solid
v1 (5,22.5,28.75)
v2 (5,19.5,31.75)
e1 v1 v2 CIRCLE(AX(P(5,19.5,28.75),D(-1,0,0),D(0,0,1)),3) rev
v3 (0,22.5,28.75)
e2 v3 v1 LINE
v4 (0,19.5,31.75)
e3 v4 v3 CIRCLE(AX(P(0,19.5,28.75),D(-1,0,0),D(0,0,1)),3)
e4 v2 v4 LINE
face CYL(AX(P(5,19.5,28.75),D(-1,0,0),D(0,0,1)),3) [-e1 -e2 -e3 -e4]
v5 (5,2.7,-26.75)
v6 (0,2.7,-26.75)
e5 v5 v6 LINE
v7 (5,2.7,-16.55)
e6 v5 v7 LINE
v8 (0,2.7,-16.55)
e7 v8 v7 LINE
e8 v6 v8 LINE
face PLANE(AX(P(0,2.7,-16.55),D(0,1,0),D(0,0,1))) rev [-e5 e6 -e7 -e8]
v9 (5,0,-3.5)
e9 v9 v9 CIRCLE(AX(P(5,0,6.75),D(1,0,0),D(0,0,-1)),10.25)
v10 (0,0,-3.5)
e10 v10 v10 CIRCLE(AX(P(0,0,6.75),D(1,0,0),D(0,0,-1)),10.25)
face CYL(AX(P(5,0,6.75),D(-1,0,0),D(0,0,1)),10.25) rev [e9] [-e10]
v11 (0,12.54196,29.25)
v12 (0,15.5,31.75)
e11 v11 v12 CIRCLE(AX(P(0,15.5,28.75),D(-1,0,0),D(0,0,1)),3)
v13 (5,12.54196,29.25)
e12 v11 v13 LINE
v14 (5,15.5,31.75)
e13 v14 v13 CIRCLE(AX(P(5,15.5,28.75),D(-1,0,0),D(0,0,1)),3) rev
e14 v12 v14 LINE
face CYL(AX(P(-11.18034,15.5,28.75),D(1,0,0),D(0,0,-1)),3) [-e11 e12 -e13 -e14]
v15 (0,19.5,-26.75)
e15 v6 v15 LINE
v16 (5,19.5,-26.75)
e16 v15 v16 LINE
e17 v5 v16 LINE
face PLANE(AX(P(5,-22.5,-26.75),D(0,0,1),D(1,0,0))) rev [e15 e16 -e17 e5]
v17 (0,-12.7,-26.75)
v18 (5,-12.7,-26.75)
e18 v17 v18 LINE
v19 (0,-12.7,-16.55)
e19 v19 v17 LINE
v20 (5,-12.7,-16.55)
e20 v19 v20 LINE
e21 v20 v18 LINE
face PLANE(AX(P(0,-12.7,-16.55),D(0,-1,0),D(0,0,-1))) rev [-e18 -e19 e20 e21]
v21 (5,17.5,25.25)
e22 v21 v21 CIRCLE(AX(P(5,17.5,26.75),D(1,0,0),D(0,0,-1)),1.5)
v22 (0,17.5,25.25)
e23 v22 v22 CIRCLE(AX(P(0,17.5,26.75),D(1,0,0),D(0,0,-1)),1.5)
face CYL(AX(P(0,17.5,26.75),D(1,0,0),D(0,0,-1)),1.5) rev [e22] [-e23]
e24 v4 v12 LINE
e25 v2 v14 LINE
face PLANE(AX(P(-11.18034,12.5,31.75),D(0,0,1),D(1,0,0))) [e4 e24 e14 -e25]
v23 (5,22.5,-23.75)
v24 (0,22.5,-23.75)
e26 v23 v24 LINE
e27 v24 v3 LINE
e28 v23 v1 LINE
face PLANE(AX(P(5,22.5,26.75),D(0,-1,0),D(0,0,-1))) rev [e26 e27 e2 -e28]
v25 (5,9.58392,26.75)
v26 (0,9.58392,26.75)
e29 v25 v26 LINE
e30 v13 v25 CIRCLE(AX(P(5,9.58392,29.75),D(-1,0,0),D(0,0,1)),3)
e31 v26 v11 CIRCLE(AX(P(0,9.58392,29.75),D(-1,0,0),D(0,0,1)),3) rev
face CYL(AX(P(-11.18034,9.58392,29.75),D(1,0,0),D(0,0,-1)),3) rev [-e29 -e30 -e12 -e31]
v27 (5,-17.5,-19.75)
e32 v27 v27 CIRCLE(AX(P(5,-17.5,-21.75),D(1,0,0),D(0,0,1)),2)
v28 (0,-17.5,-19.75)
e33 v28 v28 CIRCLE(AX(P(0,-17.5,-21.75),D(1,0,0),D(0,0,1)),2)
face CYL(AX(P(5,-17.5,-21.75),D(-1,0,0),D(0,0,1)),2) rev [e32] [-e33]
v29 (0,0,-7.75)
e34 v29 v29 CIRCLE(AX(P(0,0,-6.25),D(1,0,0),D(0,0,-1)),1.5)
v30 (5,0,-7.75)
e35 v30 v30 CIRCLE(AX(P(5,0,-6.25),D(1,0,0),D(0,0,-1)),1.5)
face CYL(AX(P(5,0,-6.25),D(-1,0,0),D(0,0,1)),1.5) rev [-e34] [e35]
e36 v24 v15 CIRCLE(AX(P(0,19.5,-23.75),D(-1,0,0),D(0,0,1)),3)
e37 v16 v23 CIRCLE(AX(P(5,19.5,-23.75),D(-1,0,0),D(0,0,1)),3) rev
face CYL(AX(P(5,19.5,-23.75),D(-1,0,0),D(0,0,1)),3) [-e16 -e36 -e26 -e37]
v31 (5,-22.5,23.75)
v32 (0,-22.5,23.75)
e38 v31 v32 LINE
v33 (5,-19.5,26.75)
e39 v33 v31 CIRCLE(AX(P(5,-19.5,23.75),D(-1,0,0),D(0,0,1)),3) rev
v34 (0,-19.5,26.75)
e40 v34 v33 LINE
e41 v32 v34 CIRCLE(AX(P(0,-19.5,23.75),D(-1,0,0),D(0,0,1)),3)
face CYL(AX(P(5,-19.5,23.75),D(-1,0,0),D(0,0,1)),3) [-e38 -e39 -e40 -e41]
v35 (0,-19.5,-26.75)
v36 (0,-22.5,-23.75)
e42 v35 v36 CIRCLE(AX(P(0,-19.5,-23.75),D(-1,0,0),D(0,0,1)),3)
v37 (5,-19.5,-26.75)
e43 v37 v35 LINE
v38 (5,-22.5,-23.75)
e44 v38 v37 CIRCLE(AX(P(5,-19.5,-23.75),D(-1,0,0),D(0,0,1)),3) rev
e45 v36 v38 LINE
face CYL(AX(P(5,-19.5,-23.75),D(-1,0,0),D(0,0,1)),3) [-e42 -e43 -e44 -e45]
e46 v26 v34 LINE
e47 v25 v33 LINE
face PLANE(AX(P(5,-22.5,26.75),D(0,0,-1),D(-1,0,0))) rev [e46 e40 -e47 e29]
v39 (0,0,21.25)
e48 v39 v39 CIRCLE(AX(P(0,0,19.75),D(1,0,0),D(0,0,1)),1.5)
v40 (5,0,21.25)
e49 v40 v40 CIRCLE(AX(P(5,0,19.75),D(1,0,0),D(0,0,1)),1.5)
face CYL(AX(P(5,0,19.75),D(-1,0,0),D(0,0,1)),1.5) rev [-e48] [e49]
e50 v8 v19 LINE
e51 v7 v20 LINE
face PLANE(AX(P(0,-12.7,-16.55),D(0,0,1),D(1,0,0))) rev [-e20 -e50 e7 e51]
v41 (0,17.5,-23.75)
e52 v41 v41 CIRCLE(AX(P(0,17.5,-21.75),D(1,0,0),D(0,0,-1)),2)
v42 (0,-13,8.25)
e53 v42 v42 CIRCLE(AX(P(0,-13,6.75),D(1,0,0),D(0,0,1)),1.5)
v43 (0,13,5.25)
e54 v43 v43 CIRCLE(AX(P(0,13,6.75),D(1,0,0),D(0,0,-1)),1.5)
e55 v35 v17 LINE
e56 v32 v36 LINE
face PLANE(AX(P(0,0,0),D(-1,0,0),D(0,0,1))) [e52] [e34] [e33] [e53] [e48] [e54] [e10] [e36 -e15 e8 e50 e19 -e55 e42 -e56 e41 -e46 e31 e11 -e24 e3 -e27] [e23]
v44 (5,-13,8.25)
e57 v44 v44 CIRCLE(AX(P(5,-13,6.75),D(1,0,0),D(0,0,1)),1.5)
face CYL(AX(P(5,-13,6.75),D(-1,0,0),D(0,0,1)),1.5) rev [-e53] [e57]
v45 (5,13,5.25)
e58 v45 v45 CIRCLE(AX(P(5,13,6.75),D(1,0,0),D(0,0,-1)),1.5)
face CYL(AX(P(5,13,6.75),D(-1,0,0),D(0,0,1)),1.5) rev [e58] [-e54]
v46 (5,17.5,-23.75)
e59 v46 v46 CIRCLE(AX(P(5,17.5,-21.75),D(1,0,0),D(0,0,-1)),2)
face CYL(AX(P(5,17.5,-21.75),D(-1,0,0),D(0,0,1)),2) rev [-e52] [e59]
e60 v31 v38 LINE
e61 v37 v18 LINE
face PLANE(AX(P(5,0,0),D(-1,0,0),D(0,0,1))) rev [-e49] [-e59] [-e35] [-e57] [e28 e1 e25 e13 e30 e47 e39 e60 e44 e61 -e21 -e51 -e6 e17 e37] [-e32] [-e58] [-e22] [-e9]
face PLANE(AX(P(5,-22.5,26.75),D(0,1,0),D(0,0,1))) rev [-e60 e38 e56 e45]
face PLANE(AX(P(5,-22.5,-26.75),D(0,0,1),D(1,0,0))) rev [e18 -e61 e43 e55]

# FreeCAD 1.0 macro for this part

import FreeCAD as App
import Part
import Sketcher

V = App.Vector


def edges_at(feature, points):
    """Names of the edges that pass closest to the given points."""
    edges = feature.Shape.Edges
    near = lambda p: min(range(len(edges)), key=lambda i: edges[i].distToShape(Part.Vertex(*p))[0])
    return sorted({f"Edge{near(p) + 1}" for p in points})

doc = App.newDocument("Part")
body = doc.addObject("PartDesign::Body", "Body")

# Sketch on YZ plane
sketch1 = body.newObject("Sketcher::SketchObject", "Sketch")
sketch1.AttachmentSupport = (doc.getObject("YZ_Plane"), [""])
sketch1.MapMode = "FlatFace"
sketch1.addGeometry(Part.LineSegment(V(22.5, 26.8, 0), V(-22.5, 26.8, 0)), False)
sketch1.addGeometry(Part.LineSegment(V(-22.5, 26.8, 0), V(-22.5, -26.8, 0)), False)
sketch1.addGeometry(Part.LineSegment(V(-22.5, -26.8, 0), V(22.5, -26.8, 0)), False)
sketch1.addGeometry(Part.LineSegment(V(22.5, -26.8, 0), V(22.5, 26.8, 0)), False)
sketch1.addGeometry(Part.Circle(V(-13, 6.8, 0), V(0, 0, 1), 1.5), False)
sketch1.addGeometry(Part.Circle(V(-17.5, -21.8, 0), V(0, 0, 1), 2), False)
sketch1.addGeometry(Part.Circle(V(0, 19.8, 0), V(0, 0, 1), 1.5), False)
sketch1.addGeometry(Part.Circle(V(0, 6.8, 0), V(0, 0, 1), 10.2), False)
sketch1.addGeometry(Part.Circle(V(13, 6.8, 0), V(0, 0, 1), 1.5), False)
sketch1.addGeometry(Part.Circle(V(0, -6.2, 0), V(0, 0, 1), 1.5), False)
sketch1.addGeometry(Part.Circle(V(17.5, -21.8, 0), V(0, 0, 1), 2), False)
sketch1.addConstraint(Sketcher.Constraint("Coincident", 0, 2, 1, 1))
sketch1.addConstraint(Sketcher.Constraint("Coincident", 1, 2, 2, 1))
sketch1.addConstraint(Sketcher.Constraint("Coincident", 2, 2, 3, 1))
sketch1.addConstraint(Sketcher.Constraint("Coincident", 3, 2, 0, 1))
sketch1.addConstraint(Sketcher.Constraint("Horizontal", 0))
sketch1.addConstraint(Sketcher.Constraint("Vertical", 1))
sketch1.addConstraint(Sketcher.Constraint("Horizontal", 2))
sketch1.addConstraint(Sketcher.Constraint("Vertical", 3))
sketch1.addConstraint(Sketcher.Constraint("Equal", 4, 6))
sketch1.addConstraint(Sketcher.Constraint("Equal", 6, 8))
sketch1.addConstraint(Sketcher.Constraint("Equal", 8, 9))
sketch1.addConstraint(Sketcher.Constraint("Equal", 5, 10))
sketch1.addConstraint(Sketcher.Constraint("Symmetric", 0, 2, 2, 2, -1, 1))
sketch1.addConstraint(Sketcher.Constraint("Symmetric", 4, 3, 8, 3, -2))
sketch1.addConstraint(Sketcher.Constraint("Symmetric", 5, 3, 10, 3, -2))
sketch1.addConstraint(Sketcher.Constraint("PointOnObject", 6, 3, -2))
sketch1.addConstraint(Sketcher.Constraint("PointOnObject", 7, 3, -2))
sketch1.addConstraint(Sketcher.Constraint("PointOnObject", 9, 3, -2))
sketch1.addConstraint(Sketcher.Constraint("Horizontal", 4, 3, 7, 3))
sketch1.addConstraint(Sketcher.Constraint("Diameter", 4, 3.0))
sketch1.addConstraint(Sketcher.Constraint("Diameter", 5, 4.0))
sketch1.addConstraint(Sketcher.Constraint("Diameter", 7, 20.5))
sketch1.addConstraint(Sketcher.Constraint("DistanceX", 0, 2, 0, 1, 45.0))
sketch1.addConstraint(Sketcher.Constraint("DistanceY", 1, 2, 1, 1, 53.5))
sketch1.addConstraint(Sketcher.Constraint("DistanceX", 4, 3, -1, 1, 13.0))
sketch1.addConstraint(Sketcher.Constraint("DistanceY", 4, 3, 6, 3, 13.0))
sketch1.addConstraint(Sketcher.Constraint("DistanceY", 9, 3, 7, 3, 13.0))
sketch1.addConstraint(Sketcher.Constraint("DistanceX", 5, 3, 10, 3, 35.0))
sketch1.addConstraint(Sketcher.Constraint("DistanceY", 4, 3, 0, 2, 20.0))
sketch1.addConstraint(Sketcher.Constraint("DistanceY", 1, 2, 5, 3, 5.0))
pad1 = body.newObject("PartDesign::Pad", "Pad")
pad1.Profile = sketch1
pad1.Length = 5

# Sketch on YZ plane
sketch2 = body.newObject("Sketcher::SketchObject", "Sketch001")
sketch2.AttachmentSupport = (doc.getObject("YZ_Plane"), [""])
sketch2.MapMode = "FlatFace"
sketch2.AttachmentOffset = App.Placement(V(0, 0, 5), App.Rotation())
sketch2.addGeometry(Part.LineSegment(V(22, 32, 0), V(12, 32, 0)), False)
sketch2.addGeometry(Part.LineSegment(V(12, 32, 0), V(12, 27, 0)), False)
sketch2.addGeometry(Part.LineSegment(V(12, 27, 0), V(22, 27, 0)), False)
sketch2.addGeometry(Part.LineSegment(V(22, 27, 0), V(22, 32, 0)), False)
sketch2.addConstraint(Sketcher.Constraint("Coincident", 0, 2, 1, 1))
sketch2.addConstraint(Sketcher.Constraint("Coincident", 1, 2, 2, 1))
sketch2.addConstraint(Sketcher.Constraint("Coincident", 2, 2, 3, 1))
sketch2.addConstraint(Sketcher.Constraint("Coincident", 3, 2, 0, 1))
sketch2.addConstraint(Sketcher.Constraint("Horizontal", 0))
sketch2.addConstraint(Sketcher.Constraint("Vertical", 1))
sketch2.addConstraint(Sketcher.Constraint("Horizontal", 2))
sketch2.addConstraint(Sketcher.Constraint("Vertical", 3))
sketch2.addConstraint(Sketcher.Constraint("DistanceX", 0, 2, 0, 1, 10.0))
sketch2.addConstraint(Sketcher.Constraint("DistanceY", 1, 2, 1, 1, 5.0))
sketch2.addConstraint(Sketcher.Constraint("DistanceX", -1, 1, 0, 2, 12.5))
sketch2.addConstraint(Sketcher.Constraint("DistanceY", -1, 1, 0, 2, 31.75))
pad2 = body.newObject("PartDesign::Pad", "Pad001")
pad2.Profile = sketch2
pad2.Length = 5
pad2.Reversed = True

# Sketch on YZ plane
sketch3 = body.newObject("Sketcher::SketchObject", "Sketch002")
sketch3.AttachmentSupport = (doc.getObject("YZ_Plane"), [""])
sketch3.MapMode = "FlatFace"
sketch3.AttachmentOffset = App.Placement(V(0, 0, 5), App.Rotation())
sketch3.addGeometry(Part.Circle(V(17.5, 26.8, 0), V(0, 0, 1), 1.5), False)
sketch3.addGeometry(Part.LineSegment(V(2.7, -16.6, 0), V(-12.7, -16.6, 0)), False)
sketch3.addGeometry(Part.LineSegment(V(-12.7, -16.6, 0), V(-12.7, -26.9, 0)), False)
sketch3.addGeometry(Part.LineSegment(V(-12.7, -26.9, 0), V(2.7, -26.9, 0)), False)
sketch3.addGeometry(Part.LineSegment(V(2.7, -26.9, 0), V(2.7, -16.6, 0)), False)
sketch3.addConstraint(Sketcher.Constraint("Coincident", 1, 2, 2, 1))
sketch3.addConstraint(Sketcher.Constraint("Coincident", 2, 2, 3, 1))
sketch3.addConstraint(Sketcher.Constraint("Coincident", 3, 2, 4, 1))
sketch3.addConstraint(Sketcher.Constraint("Coincident", 4, 2, 1, 1))
sketch3.addConstraint(Sketcher.Constraint("Horizontal", 1))
sketch3.addConstraint(Sketcher.Constraint("Vertical", 2))
sketch3.addConstraint(Sketcher.Constraint("Horizontal", 3))
sketch3.addConstraint(Sketcher.Constraint("Vertical", 4))
sketch3.addConstraint(Sketcher.Constraint("Diameter", 0, 3.0))
sketch3.addConstraint(Sketcher.Constraint("DistanceX", 1, 2, 1, 1, 15.4))
sketch3.addConstraint(Sketcher.Constraint("DistanceY", 2, 2, 2, 1, 10.4))
sketch3.addConstraint(Sketcher.Constraint("DistanceX", -1, 1, 0, 3, 17.5))
sketch3.addConstraint(Sketcher.Constraint("DistanceX", 1, 2, -1, 1, 12.7))
sketch3.addConstraint(Sketcher.Constraint("DistanceY", 1, 2, 0, 3, 43.3))
sketch3.addConstraint(Sketcher.Constraint("DistanceY", -1, 1, 0, 3, 26.75))
pocket1 = body.newObject("PartDesign::Pocket", "Pocket")
pocket1.Profile = sketch3
pocket1.Type = "ThroughAll"
doc.recompute()

fillet = body.newObject("PartDesign::Fillet", "Fillet")
fillet.Base = (pocket1, edges_at(pocket1, [
    (2.5, 22.5, 31.75),
    (2.5, 12.5, 31.75),
    (2.5, -22.5, -26.75),
    (2.5, -22.5, 26.75),
    (2.5, 22.5, -26.75),
]))
fillet.Radius = 3
doc.recompute()

fillet2 = body.newObject("PartDesign::Fillet", "Fillet001")
fillet2.Base = (fillet, edges_at(fillet, [(2.5, 12.5, 26.75)]))
fillet2.Radius = 3

doc.recompute()
